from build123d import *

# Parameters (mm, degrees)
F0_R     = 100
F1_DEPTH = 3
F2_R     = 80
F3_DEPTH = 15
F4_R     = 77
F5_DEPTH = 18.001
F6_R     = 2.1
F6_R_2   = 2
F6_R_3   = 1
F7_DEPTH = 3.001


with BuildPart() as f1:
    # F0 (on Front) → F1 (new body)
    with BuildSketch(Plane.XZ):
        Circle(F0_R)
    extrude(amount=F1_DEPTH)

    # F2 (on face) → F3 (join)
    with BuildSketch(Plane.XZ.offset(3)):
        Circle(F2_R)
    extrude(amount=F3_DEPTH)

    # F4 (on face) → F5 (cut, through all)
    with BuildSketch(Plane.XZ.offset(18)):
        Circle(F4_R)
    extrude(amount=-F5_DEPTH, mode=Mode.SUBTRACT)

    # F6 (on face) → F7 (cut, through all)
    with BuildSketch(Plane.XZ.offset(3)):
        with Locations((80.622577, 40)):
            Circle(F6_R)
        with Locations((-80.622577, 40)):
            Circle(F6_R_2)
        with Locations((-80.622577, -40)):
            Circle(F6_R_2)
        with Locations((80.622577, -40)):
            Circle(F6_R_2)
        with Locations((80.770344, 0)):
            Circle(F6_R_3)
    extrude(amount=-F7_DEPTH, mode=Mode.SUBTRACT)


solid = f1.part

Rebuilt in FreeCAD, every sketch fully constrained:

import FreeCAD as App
import Part
import Sketcher
Q = App.Units.Quantity

doc = App.newDocument("Part")
body = doc.addObject("PartDesign::Body", "Body")

sketch1 = body.newObject("Sketcher::SketchObject", "Sketch")
sketch1.AttachmentSupport = (doc.getObject("XZ_Plane"), [""])
sketch1.MapMode = "FlatFace"
sketch1.addGeometry(Part.Circle(App.Vector(0, 0, 0), App.Vector(0, 0, 1), 100), False)
sketch1.addConstraint([
    Sketcher.Constraint("Coincident", 0, 3, -1, 1),
    Sketcher.Constraint("Diameter", 0, Q("200 mm")),
])
pad1 = body.newObject("PartDesign::Pad", "Pad")
pad1.Profile = sketch1
pad1.Length = 3

sketch2 = body.newObject("Sketcher::SketchObject", "Sketch001")
sketch2.AttachmentSupport = (doc.getObject("XZ_Plane"), [""])
sketch2.MapMode = "FlatFace"
sketch2.AttachmentOffset = App.Placement(App.Vector(0, 0, 3), App.Rotation())
sketch2.addGeometry(Part.Circle(App.Vector(0, 0, 0), App.Vector(0, 0, 1), 80), False)
sketch2.addConstraint([
    Sketcher.Constraint("Coincident", 0, 3, -1, 1),
    Sketcher.Constraint("Diameter", 0, Q("160 mm")),
])
pad2 = body.newObject("PartDesign::Pad", "Pad001")
pad2.Profile = sketch2
pad2.Length = 15

sketch3 = body.newObject("Sketcher::SketchObject", "Sketch002")
sketch3.AttachmentSupport = (doc.getObject("XZ_Plane"), [""])
sketch3.MapMode = "FlatFace"
sketch3.AttachmentOffset = App.Placement(App.Vector(0, 0, 18), App.Rotation())
sketch3.addGeometry(Part.Circle(App.Vector(0, 0, 0), App.Vector(0, 0, 1), 77), False)
sketch3.addConstraint([
    Sketcher.Constraint("Coincident", 0, 3, -1, 1),
    Sketcher.Constraint("Diameter", 0, Q("154 mm")),
])
pocket1 = body.newObject("PartDesign::Pocket", "Pocket")
pocket1.Profile = sketch3
pocket1.Type = "ThroughAll"

sketch4 = body.newObject("Sketcher::SketchObject", "Sketch003")
sketch4.AttachmentSupport = (doc.getObject("XZ_Plane"), [""])
sketch4.MapMode = "FlatFace"
sketch4.AttachmentOffset = App.Placement(App.Vector(0, 0, 3), App.Rotation())
sketch4.addGeometry([
    Part.Circle(App.Vector(80.6, 40, 0), App.Vector(0, 0, 1), 2.1),
    Part.Circle(App.Vector(-80.6, 40, 0), App.Vector(0, 0, 1), 2),
    Part.Circle(App.Vector(-80.6, -40, 0), App.Vector(0, 0, 1), 2),
    Part.Circle(App.Vector(80.6, -40, 0), App.Vector(0, 0, 1), 2),
    Part.Circle(App.Vector(80.8, 0, 0), App.Vector(0, 0, 1), 1),
], False)
sketch4.addConstraint([
    Sketcher.Constraint("Equal", 1, 2),
    Sketcher.Constraint("Equal", 2, 3),
    Sketcher.Constraint("Symmetric", 0, 3, 2, 3, -1, 1),
    Sketcher.Constraint("Symmetric", 1, 3, 3, 3, -1, 1),
    Sketcher.Constraint("Symmetric", 0, 3, 1, 3, -2),
    Sketcher.Constraint("PointOnObject", 4, 3, -1),
    Sketcher.Constraint("Diameter", 1, Q("4 mm")),
    Sketcher.Constraint("Diameter", 4, Q("2 mm")),
    Sketcher.Constraint("Diameter", 0, Q("4.2 mm")),
    Sketcher.Constraint("DistanceY", -1, 1, 0, 3, Q("40 mm")),
    Sketcher.Constraint("DistanceX", 1, 3, 4, 3, Q("161.392921 mm")),
    Sketcher.Constraint("DistanceX", -1, 1, 0, 3, Q("80.622577 mm")),
])
pocket2 = body.newObject("PartDesign::Pocket", "Pocket001")
pocket2.Profile = sketch4
pocket2.Type = "ThroughAll"

doc.recompute()
